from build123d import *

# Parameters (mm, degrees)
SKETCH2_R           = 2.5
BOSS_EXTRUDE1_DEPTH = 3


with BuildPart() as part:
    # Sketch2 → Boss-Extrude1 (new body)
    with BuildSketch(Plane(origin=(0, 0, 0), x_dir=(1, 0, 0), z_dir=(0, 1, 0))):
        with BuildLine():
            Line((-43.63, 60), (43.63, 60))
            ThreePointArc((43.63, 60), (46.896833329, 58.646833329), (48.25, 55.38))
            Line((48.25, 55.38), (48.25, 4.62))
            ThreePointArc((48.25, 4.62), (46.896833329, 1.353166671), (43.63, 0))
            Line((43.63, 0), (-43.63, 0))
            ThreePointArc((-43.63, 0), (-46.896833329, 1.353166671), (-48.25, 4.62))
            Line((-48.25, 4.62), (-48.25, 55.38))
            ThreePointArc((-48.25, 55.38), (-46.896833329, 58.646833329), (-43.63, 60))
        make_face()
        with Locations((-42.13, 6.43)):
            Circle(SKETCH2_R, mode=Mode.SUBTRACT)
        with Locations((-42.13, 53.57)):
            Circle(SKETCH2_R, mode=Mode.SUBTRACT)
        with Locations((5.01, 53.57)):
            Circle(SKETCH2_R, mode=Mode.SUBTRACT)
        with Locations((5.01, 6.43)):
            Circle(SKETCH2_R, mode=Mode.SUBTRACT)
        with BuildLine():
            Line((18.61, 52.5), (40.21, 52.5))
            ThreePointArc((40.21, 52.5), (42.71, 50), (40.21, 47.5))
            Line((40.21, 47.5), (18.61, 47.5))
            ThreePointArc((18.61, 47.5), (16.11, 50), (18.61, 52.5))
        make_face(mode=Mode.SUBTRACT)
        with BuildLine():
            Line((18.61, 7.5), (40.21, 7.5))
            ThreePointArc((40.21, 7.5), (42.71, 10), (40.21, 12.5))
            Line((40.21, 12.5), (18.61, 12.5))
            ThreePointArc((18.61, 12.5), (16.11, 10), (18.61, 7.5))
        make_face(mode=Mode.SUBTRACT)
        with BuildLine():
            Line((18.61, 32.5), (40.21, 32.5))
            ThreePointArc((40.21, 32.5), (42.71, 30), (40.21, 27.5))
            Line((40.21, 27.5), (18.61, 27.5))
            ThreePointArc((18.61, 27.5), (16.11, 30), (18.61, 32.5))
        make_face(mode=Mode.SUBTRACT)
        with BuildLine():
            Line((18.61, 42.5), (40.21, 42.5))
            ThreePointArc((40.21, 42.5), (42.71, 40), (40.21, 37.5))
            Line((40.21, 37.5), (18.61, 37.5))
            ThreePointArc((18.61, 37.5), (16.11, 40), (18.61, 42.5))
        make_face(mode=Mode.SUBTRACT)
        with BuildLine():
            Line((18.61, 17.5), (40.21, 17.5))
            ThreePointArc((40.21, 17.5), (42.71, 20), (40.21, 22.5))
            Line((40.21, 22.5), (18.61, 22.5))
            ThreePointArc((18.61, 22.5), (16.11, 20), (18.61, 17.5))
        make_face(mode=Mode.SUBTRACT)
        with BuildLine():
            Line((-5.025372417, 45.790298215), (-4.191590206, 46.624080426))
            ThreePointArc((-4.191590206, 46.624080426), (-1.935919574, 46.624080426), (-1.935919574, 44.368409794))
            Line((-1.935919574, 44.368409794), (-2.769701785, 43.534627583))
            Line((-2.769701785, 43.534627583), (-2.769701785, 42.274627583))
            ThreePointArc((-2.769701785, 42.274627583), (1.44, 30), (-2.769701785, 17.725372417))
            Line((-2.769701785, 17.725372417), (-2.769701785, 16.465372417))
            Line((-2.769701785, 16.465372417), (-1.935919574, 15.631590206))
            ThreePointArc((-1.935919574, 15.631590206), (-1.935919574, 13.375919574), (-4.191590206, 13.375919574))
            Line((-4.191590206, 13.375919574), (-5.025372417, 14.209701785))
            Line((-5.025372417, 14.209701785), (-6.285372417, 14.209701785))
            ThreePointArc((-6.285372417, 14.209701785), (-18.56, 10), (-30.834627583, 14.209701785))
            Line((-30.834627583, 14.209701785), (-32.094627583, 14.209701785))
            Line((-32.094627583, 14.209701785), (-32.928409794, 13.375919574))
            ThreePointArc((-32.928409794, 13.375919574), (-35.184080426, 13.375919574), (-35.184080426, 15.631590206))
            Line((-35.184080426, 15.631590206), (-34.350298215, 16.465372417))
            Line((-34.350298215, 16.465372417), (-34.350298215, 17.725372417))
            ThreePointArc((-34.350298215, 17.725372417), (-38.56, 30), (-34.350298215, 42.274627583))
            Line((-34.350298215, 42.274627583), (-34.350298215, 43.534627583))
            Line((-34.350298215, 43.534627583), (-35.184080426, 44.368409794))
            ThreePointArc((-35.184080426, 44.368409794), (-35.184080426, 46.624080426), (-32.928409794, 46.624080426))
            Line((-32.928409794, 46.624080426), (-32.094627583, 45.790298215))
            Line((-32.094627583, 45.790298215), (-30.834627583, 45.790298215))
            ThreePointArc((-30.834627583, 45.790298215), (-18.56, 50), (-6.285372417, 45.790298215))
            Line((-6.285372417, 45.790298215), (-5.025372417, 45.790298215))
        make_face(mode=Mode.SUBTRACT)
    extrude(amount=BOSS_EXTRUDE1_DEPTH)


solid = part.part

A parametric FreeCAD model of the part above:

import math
import FreeCAD as App
import Part
import Sketcher

V = App.Vector

doc = App.newDocument("Part")
body = doc.addObject("PartDesign::Body", "Body")

sketch1 = doc.addObject("Sketcher::SketchObject", "Sketch")
body.addObject(sketch1)
sketch1.AttachmentSupport = (doc.XZ_Plane, [""])
sketch1.MapMode = "FlatFace"
sketch1.addGeometry([
    Part.LineSegment(V(43.6, -60, 0), V(-43.6, -60, 0)),
    Part.ArcOfCircle(Part.Circle(V(-43.6, -55.4, 0), V(0, 0, 1), 4.6), math.radians(180), math.radians(270)),
    Part.LineSegment(V(-48.2, -55.4, 0), V(-48.2, -4.6, 0)),
    Part.ArcOfCircle(Part.Circle(V(-43.6, -4.6, 0), V(0, 0, 1), 4.6), math.radians(90), math.radians(180)),
    Part.LineSegment(V(-43.6, 0, 0), V(43.6, 0, 0)),
    Part.ArcOfCircle(Part.Circle(V(43.6, -4.6, 0), V(0, 0, 1), 4.6), math.radians(0), math.radians(90)),
    Part.LineSegment(V(48.2, -4.6, 0), V(48.2, -55.4, 0)),
    Part.ArcOfCircle(Part.Circle(V(43.6, -55.4, 0), V(0, 0, 1), 4.6), math.radians(-90), math.radians(0)),
    Part.ArcOfCircle(Part.Circle(V(18.6, -10, 0), V(0, 0, 1), 2.5), math.radians(90), math.radians(270)),
    Part.LineSegment(V(18.6, -12.5, 0), V(40.2, -12.5, 0)),
    Part.ArcOfCircle(Part.Circle(V(40.2, -10, 0), V(0, 0, 1), 2.5), math.radians(-90), math.radians(90)),
    Part.LineSegment(V(40.2, -7.5, 0), V(18.6, -7.5, 0)),
    Part.Circle(V(5, -6.4, 0), V(0, 0, 1), 2.5),
    Part.ArcOfCircle(Part.Circle(V(18.6, -20, 0), V(0, 0, 1), 2.5), math.radians(90), math.radians(270)),
    Part.LineSegment(V(18.6, -22.5, 0), V(40.2, -22.5, 0)),
    Part.ArcOfCircle(Part.Circle(V(40.2, -20, 0), V(0, 0, 1), 2.5), math.radians(-90), math.radians(90)),
    Part.LineSegment(V(40.2, -17.5, 0), V(18.6, -17.5, 0)),
    Part.Circle(V(-42.1, -6.4, 0), V(0, 0, 1), 2.5),
    Part.LineSegment(V(18.6, -32.5, 0), V(40.2, -32.5, 0)),
    Part.ArcOfCircle(Part.Circle(V(40.2, -30, 0), V(0, 0, 1), 2.5), math.radians(-90), math.radians(90)),
    Part.LineSegment(V(40.2, -27.5, 0), V(18.6, -27.5, 0)),
    Part.ArcOfCircle(Part.Circle(V(18.6, -30, 0), V(0, 0, 1), 2.5), math.radians(90), math.radians(270)),
    Part.LineSegment(V(18.6, -42.5, 0), V(40.2, -42.5, 0)),
    Part.ArcOfCircle(Part.Circle(V(40.2, -40, 0), V(0, 0, 1), 2.5), math.radians(-90), math.radians(90)),
    Part.LineSegment(V(40.2, -37.5, 0), V(18.6, -37.5, 0)),
    Part.ArcOfCircle(Part.Circle(V(18.6, -40, 0), V(0, 0, 1), 2.5), math.radians(90), math.radians(270)),
    Part.LineSegment(V(18.6, -52.5, 0), V(40.2, -52.5, 0)),
    Part.ArcOfCircle(Part.Circle(V(40.2, -50, 0), V(0, 0, 1), 2.5), math.radians(-90), math.radians(90)),
    Part.LineSegment(V(40.2, -47.5, 0), V(18.6, -47.5, 0)),
    Part.ArcOfCircle(Part.Circle(V(18.6, -50, 0), V(0, 0, 1), 2.5), math.radians(90), math.radians(270)),
    Part.Circle(V(5, -53.6, 0), V(0, 0, 1), 2.5),
    Part.LineSegment(V(-5, -45.8, 0), V(-4.2, -46.6, 0)),
    Part.ArcOfCircle(Part.Circle(V(-3.1, -45.5, 0), V(0, 0, 1), 1.6), math.radians(-135), math.radians(45)),
    Part.LineSegment(V(-1.9, -44.4, 0), V(-2.8, -43.5, 0)),
    Part.LineSegment(V(-2.8, -43.5, 0), V(-2.8, -42.3, 0)),
    Part.ArcOfCircle(Part.Circle(V(-18.6, -30, 0), V(0, 0, 1), 20), math.radians(-38), math.radians(38)),
    Part.LineSegment(V(-2.8, -17.7, 0), V(-2.8, -16.5, 0)),
    Part.LineSegment(V(-2.8, -16.5, 0), V(-1.9, -15.6, 0)),
    Part.ArcOfCircle(Part.Circle(V(-3.1, -14.5, 0), V(0, 0, 1), 1.6), math.radians(-45), math.radians(135)),
    Part.LineSegment(V(-4.2, -13.4, 0), V(-5, -14.2, 0)),
    Part.LineSegment(V(-5, -14.2, 0), V(-6.3, -14.2, 0)),
    Part.ArcOfCircle(Part.Circle(V(-18.6, -30, 0), V(0, 0, 1), 20), math.radians(52), math.radians(128)),
    Part.LineSegment(V(-30.8, -14.2, 0), V(-32.1, -14.2, 0)),
    Part.LineSegment(V(-32.1, -14.2, 0), V(-32.9, -13.4, 0)),
    Part.ArcOfCircle(Part.Circle(V(-34.1, -14.5, 0), V(0, 0, 1), 1.6), math.radians(45), math.radians(225)),
    Part.LineSegment(V(-35.2, -15.6, 0), V(-34.4, -16.5, 0)),
    Part.LineSegment(V(-34.4, -16.5, 0), V(-34.4, -17.7, 0)),
    Part.ArcOfCircle(Part.Circle(V(-18.6, -30, 0), V(0, 0, 1), 20), math.radians(142), math.radians(218)),
    Part.LineSegment(V(-34.4, -42.3, 0), V(-34.4, -43.5, 0)),
    Part.LineSegment(V(-34.4, -43.5, 0), V(-35.2, -44.4, 0)),
    Part.ArcOfCircle(Part.Circle(V(-34.1, -45.5, 0), V(0, 0, 1), 1.6), math.radians(135), math.radians(315)),
    Part.LineSegment(V(-32.9, -46.6, 0), V(-32.1, -45.8, 0)),
    Part.LineSegment(V(-32.1, -45.8, 0), V(-30.8, -45.8, 0)),
    Part.ArcOfCircle(Part.Circle(V(-18.6, -30, 0), V(0, 0, 1), 20), math.radians(-128), math.radians(-52)),
    Part.LineSegment(V(-6.3, -45.8, 0), V(-5, -45.8, 0)),
    Part.Circle(V(-42.1, -53.6, 0), V(0, 0, 1), 2.5),
], False)
sketch1.addConstraint([
    Sketcher.Constraint("Tangent", 0, 2, 1, 2),
    Sketcher.Constraint("Tangent", 1, 1, 2, 1),
    Sketcher.Constraint("Tangent", 2, 2, 3, 2),
    Sketcher.Constraint("Tangent", 3, 1, 4, 1),
    Sketcher.Constraint("Tangent", 4, 2, 5, 2),
    Sketcher.Constraint("Tangent", 5, 1, 6, 1),
    Sketcher.Constraint("Tangent", 6, 2, 7, 2),
    Sketcher.Constraint("Tangent", 7, 1, 0, 1),
    Sketcher.Constraint("Tangent", 8, 2, 9, 1),
    Sketcher.Constraint("Tangent", 9, 2, 10, 1),
    Sketcher.Constraint("Tangent", 10, 2, 11, 1),
    Sketcher.Constraint("Tangent", 11, 2, 8, 1),
    Sketcher.Constraint("Tangent", 13, 2, 14, 1),
    Sketcher.Constraint("Tangent", 14, 2, 15, 1),
    Sketcher.Constraint("Tangent", 15, 2, 16, 1),
    Sketcher.Constraint("Tangent", 16, 2, 13, 1),
    Sketcher.Constraint("Tangent", 18, 2, 19, 1),
    Sketcher.Constraint("Tangent", 19, 2, 20, 1),
    Sketcher.Constraint("Tangent", 20, 2, 21, 1),
    Sketcher.Constraint("Tangent", 21, 2, 18, 1),
    Sketcher.Constraint("Tangent", 22, 2, 23, 1),
    Sketcher.Constraint("Tangent", 23, 2, 24, 1),
    Sketcher.Constraint("Tangent", 24, 2, 25, 1),
    Sketcher.Constraint("Tangent", 25, 2, 22, 1),
    Sketcher.Constraint("Tangent", 26, 2, 27, 1),
    Sketcher.Constraint("Tangent", 27, 2, 28, 1),
    Sketcher.Constraint("Tangent", 28, 2, 29, 1),
    Sketcher.Constraint("Tangent", 29, 2, 26, 1),
    Sketcher.Constraint("Tangent", 31, 2, 32, 1),
    Sketcher.Constraint("Tangent", 32, 2, 33, 1),
    Sketcher.Constraint("Coincident", 33, 2, 34, 1),
    Sketcher.Constraint("Coincident", 34, 2, 35, 1),
    Sketcher.Constraint("Coincident", 35, 2, 36, 1),
    Sketcher.Constraint("Coincident", 36, 2, 37, 1),
    Sketcher.Constraint("Tangent", 37, 2, 38, 1),
    Sketcher.Constraint("Tangent", 38, 2, 39, 1),
    Sketcher.Constraint("Coincident", 39, 2, 40, 1),
    Sketcher.Constraint("Coincident", 40, 2, 41, 1),
    Sketcher.Constraint("Coincident", 41, 2, 42, 1),
    Sketcher.Constraint("Coincident", 42, 2, 43, 1),
    Sketcher.Constraint("Tangent", 43, 2, 44, 1),
    Sketcher.Constraint("Tangent", 44, 2, 45, 1),
    Sketcher.Constraint("Coincident", 45, 2, 46, 1),
    Sketcher.Constraint("Coincident", 46, 2, 47, 1),
    Sketcher.Constraint("Coincident", 47, 2, 48, 1),
    Sketcher.Constraint("Coincident", 48, 2, 49, 1),
    Sketcher.Constraint("Tangent", 49, 2, 50, 1),
    Sketcher.Constraint("Tangent", 50, 2, 51, 1),
    Sketcher.Constraint("Coincident", 51, 2, 52, 1),
    Sketcher.Constraint("Coincident", 52, 2, 53, 1),
    Sketcher.Constraint("Coincident", 53, 2, 54, 1),
    Sketcher.Constraint("Coincident", 54, 2, 31, 1),
    Sketcher.Constraint("Horizontal", 0),
    Sketcher.Constraint("Vertical", 2),
    Sketcher.Constraint("Horizontal", 4),
    Sketcher.Constraint("Vertical", 6),
    Sketcher.Constraint("Horizontal", 9),
    Sketcher.Constraint("Horizontal", 11),
    Sketcher.Constraint("Horizontal", 14),
    Sketcher.Constraint("Horizontal", 16),
    Sketcher.Constraint("Horizontal", 18),
    Sketcher.Constraint("Horizontal", 20),
    Sketcher.Constraint("Horizontal", 22),
    Sketcher.Constraint("Horizontal", 24),
    Sketcher.Constraint("Horizontal", 26),
    Sketcher.Constraint("Horizontal", 28),
    Sketcher.Constraint("Vertical", 34),
    Sketcher.Constraint("Vertical", 36),
    Sketcher.Constraint("Horizontal", 40),
    Sketcher.Constraint("Horizontal", 42),
    Sketcher.Constraint("Vertical", 46),
    Sketcher.Constraint("Vertical", 48),
    Sketcher.Constraint("Horizontal", 52),
    Sketcher.Constraint("Horizontal", 54),
    Sketcher.Constraint("Coincident", 41, 3, 35, 3),
    Sketcher.Constraint("Coincident", 47, 3, 35, 3),
    Sketcher.Constraint("Coincident", 53, 3, 35, 3),
    Sketcher.Constraint("Equal", 1, 3),
    Sketcher.Constraint("Equal", 3, 5),
    Sketcher.Constraint("Equal", 5, 7),
    Sketcher.Constraint("Equal", 10, 12),
    Sketcher.Constraint("Equal", 12, 13),
    Sketcher.Constraint("Equal", 15, 17),
    Sketcher.Constraint("Equal", 17, 19),
    Sketcher.Constraint("Equal", 21, 23),
    Sketcher.Constraint("Equal", 25, 27),
    Sketcher.Constraint("Equal", 29, 30),
    Sketcher.Constraint("Equal", 32, 38),
    Sketcher.Constraint("Equal", 35, 41),
    Sketcher.Constraint("Equal", 38, 44),
    Sketcher.Constraint("Equal", 41, 47),
    Sketcher.Constraint("Equal", 44, 50),
    Sketcher.Constraint("Equal", 47, 53),
    Sketcher.Constraint("Equal", 30, 55),
    Sketcher.Constraint("Symmetric", 3, 1, 4, 2, -1, 1),
    Sketcher.Constraint("Parallel", 31, 33),
    Sketcher.Constraint("Perpendicular", 33, 37),
    Sketcher.Constraint("Parallel", 37, 39),
    Sketcher.Constraint("Perpendicular", 39, 43),
    Sketcher.Constraint("Parallel", 43, 45),
    Sketcher.Constraint("Perpendicular", 45, 49),
    Sketcher.Constraint("Parallel", 49, 51),
    Sketcher.Constraint("Horizontal", 12, 3, 17, 3),
    Sketcher.Constraint("Horizontal", 21, 3, 35, 3),
    Sketcher.Constraint("Horizontal", 38, 3, 44, 3),
    Sketcher.Constraint("Horizontal", 32, 3, 50, 3),
    Sketcher.Constraint("Horizontal", 30, 3, 55, 3),
    Sketcher.Constraint("Horizontal", 40, 2, 41, 2),
    Sketcher.Constraint("Horizontal", 38, 2, 43, 2),
    Sketcher.Constraint("Horizontal", 36, 2, 45, 2),
    Sketcher.Constraint("Horizontal", 35, 2, 46, 2),
    Sketcher.Constraint("Horizontal", 34, 2, 47, 2),
    Sketcher.Constraint("Horizontal", 33, 2, 48, 2),
    Sketcher.Constraint("Horizontal", 52, 2, 53, 2),
    Sketcher.Constraint("Vertical", 8, 3, 13, 3),
    Sketcher.Constraint("Vertical", 10, 3, 15, 3),
    Sketcher.Constraint("Vertical", 15, 3, 19, 3),
    Sketcher.Constraint("Vertical", 13, 3, 21, 3),
    Sketcher.Constraint("Vertical", 19, 3, 23, 3),
    Sketcher.Constraint("Vertical", 21, 3, 25, 3),
    Sketcher.Constraint("Vertical", 23, 3, 27, 3),
    Sketcher.Constraint("Vertical", 25, 3, 29, 3),
    Sketcher.Constraint("Vertical", 12, 3, 30, 3),
    Sketcher.Constraint("Vertical", 32, 3, 38, 3),
    Sketcher.Constraint("Vertical", 17, 3, 55, 3),
    Sketcher.Constraint("Vertical", 34, 2, 35, 2),
    Sketcher.Constraint("Vertical", 42, 2, 51, 2),
    Sketcher.Constraint("Vertical", 41, 2, 52, 2),
    Sketcher.Constraint("Equal", 54, 34),
    Sketcher.Constraint("Equal", 31, 33),
    Sketcher.Constraint("Diameter", 12, 5.0),
    Sketcher.Constraint("Radius", 35, 20.0),
    Sketcher.Constraint("Radius", 1, 4.62),
    Sketcher.Constraint("DistanceX", 9, 1, 9, 2, 21.6),
    Sketcher.Constraint("DistanceY", 8, 3, -1, 1, 10.0),
    Sketcher.Constraint("DistanceY", 13, 3, -1, 1, 20.0),
    Sketcher.Constraint("DistanceY", 19, 3, -1, 1, 30.0),
    Sketcher.Constraint("DistanceY", 23, 3, -1, 1, 40.0),
    Sketcher.Constraint("DistanceY", 27, 3, -1, 1, 50.0),
    Sketcher.Constraint("DistanceY", 0, 2, -1, 1, 60.0),
    Sketcher.Constraint("Radius", 32, 1.595),
    Sketcher.Constraint("DistanceX", 0, 2, 0, 1, 87.26),
    Sketcher.Constraint("DistanceX", 40, 2, 40, 1, 1.26),
    Sketcher.Constraint("DistanceX", -1, 1, 8, 3, 18.61),
    Sketcher.Constraint("DistanceX", -1, 1, 12, 3, 5.01),
    Sketcher.Constraint("DistanceY", 12, 3, -1, 1, 6.43),
    Sketcher.Constraint("DistanceX", 17, 3, -1, 1, 42.13),
    Sketcher.Constraint("DistanceY", 30, 3, -1, 1, 53.57),
    Sketcher.Constraint("DistanceX", 35, 3, -1, 1, 18.56),
    Sketcher.Constraint("DistanceX", 31, 2, -1, 1, 4.19159),
])
pad1 = doc.addObject("PartDesign::Pad", "Pad")
body.addObject(pad1)
pad1.Profile = sketch1
pad1.Length = 3
pad1.Reversed = True

doc.recompute()
